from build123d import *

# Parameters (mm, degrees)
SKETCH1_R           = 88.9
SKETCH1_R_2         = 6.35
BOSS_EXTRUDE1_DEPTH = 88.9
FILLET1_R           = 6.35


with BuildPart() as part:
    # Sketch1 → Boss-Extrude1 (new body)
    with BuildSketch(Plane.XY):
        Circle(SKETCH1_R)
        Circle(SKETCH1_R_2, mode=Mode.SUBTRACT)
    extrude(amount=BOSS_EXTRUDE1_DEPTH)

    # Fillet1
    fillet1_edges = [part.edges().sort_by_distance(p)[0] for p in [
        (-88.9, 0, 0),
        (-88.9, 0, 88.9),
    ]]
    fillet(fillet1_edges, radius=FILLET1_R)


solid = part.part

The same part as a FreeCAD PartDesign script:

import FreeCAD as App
import Part
import Sketcher
Q = App.Units.Quantity


def edges_at(feature, points):
    """Names of the edges that pass closest to the given points."""
    edges = feature.Shape.Edges
    near = lambda p: min(range(len(edges)), key=lambda i: edges[i].distToShape(Part.Vertex(*p))[0])
    return sorted({f"Edge{near(p) + 1}" for p in points})

doc = App.newDocument("Part")
body = doc.addObject("PartDesign::Body", "Body")

# Sketch on XY plane
sketch1 = doc.addObject("Sketcher::SketchObject", "Sketch")
body.addObject(sketch1)
sketch1.AttachmentSupport = (doc.XY_Plane, [""])
sketch1.MapMode = "FlatFace"
sketch1.addGeometry([
    Part.Circle(App.Vector(0, 0, 0), App.Vector(0, 0, 1), 88.9),
    Part.Circle(App.Vector(0, 0, 0), App.Vector(0, 0, 1), 6.35),
], False)
sketch1.addConstraint([
    Sketcher.Constraint("Coincident", 0, 3, -1, 1),
    Sketcher.Constraint("Coincident", 1, 3, -1, 1),
    Sketcher.Constraint("Diameter", 0, Q("7 in")),
    Sketcher.Constraint("Diameter", 1, Q("0.5 in")),
])
pad1 = doc.addObject("PartDesign::Pad", "Pad")
body.addObject(pad1)
pad1.Profile = sketch1
pad1.Length = Q("3.5 in")
doc.recompute()

fillet = doc.addObject("PartDesign::Fillet", "Fillet")
body.addObject(fillet)
fillet.Base = (pad1, edges_at(pad1, [(-88.9, 0, 0), (-88.9, 0, 88.9)]))
fillet.Radius = Q("0.25 in")

doc.recompute()
